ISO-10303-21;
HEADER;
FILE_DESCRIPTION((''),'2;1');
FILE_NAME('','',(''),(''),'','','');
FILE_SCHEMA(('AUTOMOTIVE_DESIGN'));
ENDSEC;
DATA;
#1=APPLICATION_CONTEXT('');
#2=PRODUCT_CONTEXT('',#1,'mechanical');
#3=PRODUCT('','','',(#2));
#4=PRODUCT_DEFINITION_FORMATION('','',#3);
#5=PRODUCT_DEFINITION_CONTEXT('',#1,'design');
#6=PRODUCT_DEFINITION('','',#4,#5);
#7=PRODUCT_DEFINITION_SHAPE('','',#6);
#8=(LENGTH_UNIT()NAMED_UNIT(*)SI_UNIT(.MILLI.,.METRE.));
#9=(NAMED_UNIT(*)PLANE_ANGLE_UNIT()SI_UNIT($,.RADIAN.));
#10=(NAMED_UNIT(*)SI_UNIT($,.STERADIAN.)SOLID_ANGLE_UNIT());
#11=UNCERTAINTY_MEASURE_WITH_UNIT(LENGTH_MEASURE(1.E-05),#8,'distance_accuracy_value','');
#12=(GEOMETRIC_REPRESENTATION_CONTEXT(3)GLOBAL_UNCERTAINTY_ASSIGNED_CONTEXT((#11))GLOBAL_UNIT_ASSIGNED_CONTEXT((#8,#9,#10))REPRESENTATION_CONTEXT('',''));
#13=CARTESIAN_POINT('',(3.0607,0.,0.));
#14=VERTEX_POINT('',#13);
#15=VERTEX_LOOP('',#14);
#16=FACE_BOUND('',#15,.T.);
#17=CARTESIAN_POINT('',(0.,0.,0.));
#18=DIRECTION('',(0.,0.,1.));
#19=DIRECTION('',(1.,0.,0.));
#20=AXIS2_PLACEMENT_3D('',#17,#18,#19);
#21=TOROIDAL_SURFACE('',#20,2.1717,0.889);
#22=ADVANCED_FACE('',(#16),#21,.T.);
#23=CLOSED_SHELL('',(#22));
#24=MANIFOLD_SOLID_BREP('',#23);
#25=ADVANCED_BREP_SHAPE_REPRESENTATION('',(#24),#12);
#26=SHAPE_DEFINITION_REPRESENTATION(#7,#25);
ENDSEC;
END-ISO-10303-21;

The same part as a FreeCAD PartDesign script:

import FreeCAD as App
import Part
import Sketcher

V = App.Vector
Q = App.Units.Quantity

doc = App.newDocument("Part")
body = doc.addObject("PartDesign::Body", "Body")

# Sketch on YZ plane
sketch1 = body.newObject("Sketcher::SketchObject", "Sketch")
sketch1.AttachmentSupport = (doc.getObject("YZ_Plane"), [""])
sketch1.MapMode = "FlatFace"
sketch1.addGeometry(Part.Circle(V(-2.2, 0, 0), V(0, 0, 1), 0.9), False)
sketch1.addConstraint([
    Sketcher.Constraint("PointOnObject", 0, 3, -1),
    Sketcher.Constraint("Diameter", 0, Q("0.07 in")),
    Sketcher.Constraint("DistanceX", 0, 3, -1, 1, Q("0.0855 in")),
])
revolution = body.newObject("PartDesign::Revolution", "Revolution")
revolution.Profile = sketch1
revolution.ReferenceAxis = (sketch1, ["V_Axis"])
revolution.Angle = 360

doc.recompute()
